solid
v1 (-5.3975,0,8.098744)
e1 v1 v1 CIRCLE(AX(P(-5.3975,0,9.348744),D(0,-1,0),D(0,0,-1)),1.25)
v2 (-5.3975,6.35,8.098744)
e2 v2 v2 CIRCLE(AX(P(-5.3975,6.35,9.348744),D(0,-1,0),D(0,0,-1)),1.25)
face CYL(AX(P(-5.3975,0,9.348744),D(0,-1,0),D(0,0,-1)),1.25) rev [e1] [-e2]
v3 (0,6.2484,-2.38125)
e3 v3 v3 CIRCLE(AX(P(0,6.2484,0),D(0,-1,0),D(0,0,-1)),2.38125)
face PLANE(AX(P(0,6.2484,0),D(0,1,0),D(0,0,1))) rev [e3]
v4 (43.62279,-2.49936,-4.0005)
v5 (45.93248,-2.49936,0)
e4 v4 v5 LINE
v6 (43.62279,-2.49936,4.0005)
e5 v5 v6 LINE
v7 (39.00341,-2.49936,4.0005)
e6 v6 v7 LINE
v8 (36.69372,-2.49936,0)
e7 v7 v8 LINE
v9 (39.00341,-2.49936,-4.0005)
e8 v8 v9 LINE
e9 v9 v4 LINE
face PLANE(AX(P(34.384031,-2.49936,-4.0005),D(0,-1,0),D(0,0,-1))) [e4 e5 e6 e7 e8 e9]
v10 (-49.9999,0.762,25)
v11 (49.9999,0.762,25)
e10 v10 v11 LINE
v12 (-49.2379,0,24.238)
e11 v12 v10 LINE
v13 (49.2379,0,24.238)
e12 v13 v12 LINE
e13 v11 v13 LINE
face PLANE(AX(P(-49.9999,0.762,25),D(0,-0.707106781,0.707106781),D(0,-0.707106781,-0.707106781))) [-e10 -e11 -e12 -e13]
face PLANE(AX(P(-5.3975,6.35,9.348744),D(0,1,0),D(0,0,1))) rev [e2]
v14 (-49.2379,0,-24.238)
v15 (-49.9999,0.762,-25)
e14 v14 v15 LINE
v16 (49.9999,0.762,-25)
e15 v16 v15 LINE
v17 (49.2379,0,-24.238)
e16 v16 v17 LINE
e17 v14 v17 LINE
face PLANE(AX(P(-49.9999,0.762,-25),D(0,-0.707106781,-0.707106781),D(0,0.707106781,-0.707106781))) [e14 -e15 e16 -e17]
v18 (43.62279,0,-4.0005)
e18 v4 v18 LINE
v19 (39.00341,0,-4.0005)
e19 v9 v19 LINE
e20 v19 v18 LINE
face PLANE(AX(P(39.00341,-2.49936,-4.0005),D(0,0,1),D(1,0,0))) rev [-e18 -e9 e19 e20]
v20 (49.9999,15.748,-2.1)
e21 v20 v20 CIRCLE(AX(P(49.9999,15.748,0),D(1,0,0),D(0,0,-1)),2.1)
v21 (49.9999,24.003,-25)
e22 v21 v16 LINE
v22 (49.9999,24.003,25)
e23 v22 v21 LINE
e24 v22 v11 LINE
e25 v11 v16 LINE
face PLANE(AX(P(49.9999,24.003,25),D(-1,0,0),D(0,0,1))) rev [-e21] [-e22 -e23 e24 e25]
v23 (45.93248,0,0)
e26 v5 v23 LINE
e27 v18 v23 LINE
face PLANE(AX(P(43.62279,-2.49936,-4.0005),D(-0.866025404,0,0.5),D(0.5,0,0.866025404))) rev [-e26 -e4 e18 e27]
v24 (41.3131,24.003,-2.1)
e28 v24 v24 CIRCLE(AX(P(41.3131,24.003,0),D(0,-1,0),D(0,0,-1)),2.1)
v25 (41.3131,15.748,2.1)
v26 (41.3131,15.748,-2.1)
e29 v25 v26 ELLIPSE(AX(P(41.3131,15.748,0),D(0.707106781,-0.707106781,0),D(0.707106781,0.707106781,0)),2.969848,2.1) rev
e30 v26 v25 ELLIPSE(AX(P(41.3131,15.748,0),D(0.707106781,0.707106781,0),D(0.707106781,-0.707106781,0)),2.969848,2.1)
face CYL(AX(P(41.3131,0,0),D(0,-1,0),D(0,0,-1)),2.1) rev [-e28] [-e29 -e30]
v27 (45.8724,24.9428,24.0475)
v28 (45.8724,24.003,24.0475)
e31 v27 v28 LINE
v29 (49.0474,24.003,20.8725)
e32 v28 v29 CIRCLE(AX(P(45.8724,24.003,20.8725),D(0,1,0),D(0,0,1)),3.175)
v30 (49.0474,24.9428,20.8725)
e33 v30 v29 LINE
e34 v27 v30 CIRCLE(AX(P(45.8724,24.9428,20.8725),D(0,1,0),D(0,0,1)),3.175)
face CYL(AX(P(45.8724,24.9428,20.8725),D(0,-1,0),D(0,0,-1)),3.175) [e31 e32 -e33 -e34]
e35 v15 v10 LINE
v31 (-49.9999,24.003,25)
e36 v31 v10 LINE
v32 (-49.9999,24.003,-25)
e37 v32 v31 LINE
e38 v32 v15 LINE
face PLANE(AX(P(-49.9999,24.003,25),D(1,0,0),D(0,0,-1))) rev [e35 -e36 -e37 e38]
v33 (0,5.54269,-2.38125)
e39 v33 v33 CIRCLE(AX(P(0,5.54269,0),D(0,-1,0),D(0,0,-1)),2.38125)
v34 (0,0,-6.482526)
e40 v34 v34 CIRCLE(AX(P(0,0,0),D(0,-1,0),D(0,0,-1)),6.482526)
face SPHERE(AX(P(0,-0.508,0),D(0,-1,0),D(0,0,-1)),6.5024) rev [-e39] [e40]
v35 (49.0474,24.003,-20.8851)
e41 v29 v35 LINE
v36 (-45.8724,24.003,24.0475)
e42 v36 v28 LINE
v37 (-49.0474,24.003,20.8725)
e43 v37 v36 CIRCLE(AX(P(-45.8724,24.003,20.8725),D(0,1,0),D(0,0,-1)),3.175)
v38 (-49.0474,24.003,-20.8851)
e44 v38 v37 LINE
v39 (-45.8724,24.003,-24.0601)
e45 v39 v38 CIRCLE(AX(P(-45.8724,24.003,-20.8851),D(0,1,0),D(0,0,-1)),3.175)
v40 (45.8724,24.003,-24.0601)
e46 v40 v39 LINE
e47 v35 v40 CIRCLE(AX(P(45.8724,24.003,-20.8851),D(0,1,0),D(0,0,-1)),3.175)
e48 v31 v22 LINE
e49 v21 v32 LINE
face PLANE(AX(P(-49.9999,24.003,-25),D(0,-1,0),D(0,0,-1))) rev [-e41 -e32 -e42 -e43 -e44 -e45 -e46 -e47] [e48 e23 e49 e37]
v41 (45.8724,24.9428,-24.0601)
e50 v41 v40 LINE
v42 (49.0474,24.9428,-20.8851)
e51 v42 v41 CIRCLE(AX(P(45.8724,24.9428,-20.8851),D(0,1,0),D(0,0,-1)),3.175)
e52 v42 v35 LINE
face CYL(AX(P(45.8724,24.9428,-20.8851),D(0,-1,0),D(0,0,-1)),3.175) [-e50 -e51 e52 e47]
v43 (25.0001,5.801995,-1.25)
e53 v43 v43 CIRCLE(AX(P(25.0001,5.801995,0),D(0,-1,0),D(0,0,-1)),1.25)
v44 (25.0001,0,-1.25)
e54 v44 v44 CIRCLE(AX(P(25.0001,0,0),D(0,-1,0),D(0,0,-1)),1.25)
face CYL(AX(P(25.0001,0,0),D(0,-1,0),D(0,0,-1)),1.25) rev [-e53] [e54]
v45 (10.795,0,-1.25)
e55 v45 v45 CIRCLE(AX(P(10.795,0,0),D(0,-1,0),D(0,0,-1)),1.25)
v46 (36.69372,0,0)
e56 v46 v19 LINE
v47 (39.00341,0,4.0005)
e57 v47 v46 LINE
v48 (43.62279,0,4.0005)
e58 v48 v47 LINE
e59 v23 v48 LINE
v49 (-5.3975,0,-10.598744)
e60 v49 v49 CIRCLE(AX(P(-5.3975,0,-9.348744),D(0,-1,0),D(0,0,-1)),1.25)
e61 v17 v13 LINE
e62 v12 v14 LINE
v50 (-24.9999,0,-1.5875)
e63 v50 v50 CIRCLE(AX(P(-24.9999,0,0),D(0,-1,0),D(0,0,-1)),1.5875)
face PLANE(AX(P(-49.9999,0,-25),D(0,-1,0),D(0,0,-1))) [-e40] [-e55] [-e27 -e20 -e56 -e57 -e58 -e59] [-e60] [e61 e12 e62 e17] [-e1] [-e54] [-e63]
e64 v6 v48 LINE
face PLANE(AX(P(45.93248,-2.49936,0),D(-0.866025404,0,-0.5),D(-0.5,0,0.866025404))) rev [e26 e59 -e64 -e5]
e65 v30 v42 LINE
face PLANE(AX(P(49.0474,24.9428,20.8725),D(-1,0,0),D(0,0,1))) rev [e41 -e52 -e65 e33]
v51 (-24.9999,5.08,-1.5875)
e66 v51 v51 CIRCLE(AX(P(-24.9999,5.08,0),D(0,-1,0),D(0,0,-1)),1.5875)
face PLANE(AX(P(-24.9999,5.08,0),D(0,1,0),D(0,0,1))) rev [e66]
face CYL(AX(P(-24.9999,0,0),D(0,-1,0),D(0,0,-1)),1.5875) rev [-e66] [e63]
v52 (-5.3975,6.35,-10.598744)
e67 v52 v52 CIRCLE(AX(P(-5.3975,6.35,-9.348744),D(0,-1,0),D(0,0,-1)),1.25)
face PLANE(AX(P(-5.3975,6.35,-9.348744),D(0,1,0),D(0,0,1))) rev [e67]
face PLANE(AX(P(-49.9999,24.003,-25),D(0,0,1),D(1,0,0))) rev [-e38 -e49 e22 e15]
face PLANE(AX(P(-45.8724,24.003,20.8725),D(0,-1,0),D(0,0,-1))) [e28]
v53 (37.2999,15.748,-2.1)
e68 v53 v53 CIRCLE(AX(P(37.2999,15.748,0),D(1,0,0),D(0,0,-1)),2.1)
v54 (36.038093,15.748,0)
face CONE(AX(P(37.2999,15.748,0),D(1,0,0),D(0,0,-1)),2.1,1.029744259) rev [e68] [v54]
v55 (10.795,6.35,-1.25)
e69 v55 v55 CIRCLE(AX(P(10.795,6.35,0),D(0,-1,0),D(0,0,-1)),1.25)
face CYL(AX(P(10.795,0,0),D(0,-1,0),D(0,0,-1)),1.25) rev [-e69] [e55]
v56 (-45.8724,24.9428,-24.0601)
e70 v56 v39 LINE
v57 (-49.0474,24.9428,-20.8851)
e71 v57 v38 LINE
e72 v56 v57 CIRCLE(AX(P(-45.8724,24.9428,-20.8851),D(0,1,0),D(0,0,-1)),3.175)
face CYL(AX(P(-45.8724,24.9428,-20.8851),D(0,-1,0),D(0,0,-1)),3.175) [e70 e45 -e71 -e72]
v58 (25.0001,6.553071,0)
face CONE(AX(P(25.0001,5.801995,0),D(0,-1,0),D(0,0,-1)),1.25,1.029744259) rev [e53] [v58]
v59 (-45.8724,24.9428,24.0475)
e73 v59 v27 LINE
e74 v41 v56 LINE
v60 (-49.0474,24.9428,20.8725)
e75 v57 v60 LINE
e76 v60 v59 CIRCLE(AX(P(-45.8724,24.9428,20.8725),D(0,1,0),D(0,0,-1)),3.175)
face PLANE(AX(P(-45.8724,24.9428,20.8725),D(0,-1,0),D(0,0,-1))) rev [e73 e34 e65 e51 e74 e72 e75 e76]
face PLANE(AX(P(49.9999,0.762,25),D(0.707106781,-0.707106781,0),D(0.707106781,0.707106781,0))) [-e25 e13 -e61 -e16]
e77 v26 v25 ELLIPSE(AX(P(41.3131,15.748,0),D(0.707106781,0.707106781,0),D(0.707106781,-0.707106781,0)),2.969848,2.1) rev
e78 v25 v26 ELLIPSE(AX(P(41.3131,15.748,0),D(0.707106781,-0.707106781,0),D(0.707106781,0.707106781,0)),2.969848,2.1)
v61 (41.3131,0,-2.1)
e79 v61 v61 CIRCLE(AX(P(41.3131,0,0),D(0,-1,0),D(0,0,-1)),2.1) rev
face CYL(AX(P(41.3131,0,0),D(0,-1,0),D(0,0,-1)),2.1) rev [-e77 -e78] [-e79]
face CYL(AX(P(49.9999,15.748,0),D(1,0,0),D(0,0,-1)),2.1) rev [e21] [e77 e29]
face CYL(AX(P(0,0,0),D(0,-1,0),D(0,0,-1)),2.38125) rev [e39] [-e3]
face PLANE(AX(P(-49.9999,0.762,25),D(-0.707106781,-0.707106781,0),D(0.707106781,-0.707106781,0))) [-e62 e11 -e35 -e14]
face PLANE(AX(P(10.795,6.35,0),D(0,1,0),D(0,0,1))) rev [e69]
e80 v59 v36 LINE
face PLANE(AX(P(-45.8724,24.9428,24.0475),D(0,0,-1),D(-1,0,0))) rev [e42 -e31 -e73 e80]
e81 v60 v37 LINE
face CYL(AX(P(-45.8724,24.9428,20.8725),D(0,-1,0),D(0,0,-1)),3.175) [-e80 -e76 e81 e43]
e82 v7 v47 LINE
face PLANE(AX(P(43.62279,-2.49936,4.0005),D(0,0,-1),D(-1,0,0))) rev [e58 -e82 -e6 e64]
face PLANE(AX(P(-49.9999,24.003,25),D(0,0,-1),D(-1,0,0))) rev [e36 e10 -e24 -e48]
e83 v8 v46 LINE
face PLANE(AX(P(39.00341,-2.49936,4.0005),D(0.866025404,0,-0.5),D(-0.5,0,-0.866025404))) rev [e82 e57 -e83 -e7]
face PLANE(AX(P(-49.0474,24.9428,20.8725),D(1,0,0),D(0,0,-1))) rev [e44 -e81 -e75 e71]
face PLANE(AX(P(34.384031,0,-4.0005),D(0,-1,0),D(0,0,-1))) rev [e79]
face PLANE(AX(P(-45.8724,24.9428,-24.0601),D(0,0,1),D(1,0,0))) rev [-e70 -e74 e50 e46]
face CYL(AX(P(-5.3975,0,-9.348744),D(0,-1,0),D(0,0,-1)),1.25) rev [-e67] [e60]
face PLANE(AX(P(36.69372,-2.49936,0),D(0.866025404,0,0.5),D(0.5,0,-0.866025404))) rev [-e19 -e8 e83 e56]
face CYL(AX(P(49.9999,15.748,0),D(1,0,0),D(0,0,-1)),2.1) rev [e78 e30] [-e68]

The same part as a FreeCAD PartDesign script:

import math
import FreeCAD as App
import Part
import Sketcher

V = App.Vector
Q = App.Units.Quantity


def edges_at(feature, points):
    """Names of the edges that pass closest to the given points."""
    edges = feature.Shape.Edges
    near = lambda p: min(range(len(edges)), key=lambda i: edges[i].distToShape(Part.Vertex(*p))[0])
    return sorted({f"Edge{near(p) + 1}" for p in points})

doc = App.newDocument("Part")
body = doc.addObject("PartDesign::Body", "Body")

# Sketch on XZ plane
sketch1 = body.newObject("Sketcher::SketchObject", "Sketch")
sketch1.AttachmentSupport = (doc.getObject("XZ_Plane"), [""])
sketch1.MapMode = "FlatFace"
sketch1.addGeometry(Part.LineSegment(V(-50, -25, 0), V(-50, 25, 0)), False)
sketch1.addGeometry(Part.LineSegment(V(-50, 25, 0), V(50, 25, 0)), False)
sketch1.addGeometry(Part.LineSegment(V(50, 25, 0), V(50, -25, 0)), False)
sketch1.addGeometry(Part.LineSegment(V(50, -25, 0), V(-50, -25, 0)), False)
sketch1.addConstraint(Sketcher.Constraint("Coincident", 0, 2, 1, 1))
sketch1.addConstraint(Sketcher.Constraint("Coincident", 1, 2, 2, 1))
sketch1.addConstraint(Sketcher.Constraint("Coincident", 2, 2, 3, 1))
sketch1.addConstraint(Sketcher.Constraint("Coincident", 3, 2, 0, 1))
sketch1.addConstraint(Sketcher.Constraint("Vertical", 0))
sketch1.addConstraint(Sketcher.Constraint("Horizontal", 1))
sketch1.addConstraint(Sketcher.Constraint("Vertical", 2))
sketch1.addConstraint(Sketcher.Constraint("Horizontal", 3))
sketch1.addConstraint(Sketcher.Constraint("Symmetric", 0, 2, 2, 2, -1, 1))
sketch1.addConstraint(Sketcher.Constraint("DistanceX", 1, 1, 1, 2, Q("3.937 in")))
sketch1.addConstraint(Sketcher.Constraint("DistanceY", 0, 1, 0, 2, 50.0))
pad1 = body.newObject("PartDesign::Pad", "Pad")
pad1.Profile = sketch1
pad1.Length = Q("0.945 in")
pad1.Reversed = True

# Sketch on XZ plane
sketch2 = body.newObject("Sketcher::SketchObject", "Sketch001")
sketch2.AttachmentSupport = (doc.getObject("XZ_Plane"), [""])
sketch2.MapMode = "FlatFace"
sketch2.addGeometry(Part.Circle(V(-25, 0, 0), V(0, 0, 1), 1.6), False)
sketch2.addConstraint(Sketcher.Constraint("PointOnObject", 0, 3, -1))
sketch2.addConstraint(Sketcher.Constraint("Diameter", 0, Q("0.125 in")))
sketch2.addConstraint(Sketcher.Constraint("DistanceX", 0, 3, -1, 1, 24.9999))
doc.recompute()
hole = body.newObject("PartDesign::Hole", "Hole")
hole.Profile = sketch2
hole.ThreadType = "None"
hole.Diameter = Q("0.125 in")
hole.DepthType = "Dimension"
hole.Depth = Q("0.2 in")
hole.DrillPoint = "Flat"

# Sketch on XZ plane
sketch3 = body.newObject("Sketcher::SketchObject", "Sketch002")
sketch3.AttachmentSupport = (doc.getObject("XZ_Plane"), [""])
sketch3.MapMode = "FlatFace"
sketch3.addGeometry(Part.Circle(V(10.8, 0, 0), V(0, 0, 1), 1.2), False)
sketch3.addConstraint(Sketcher.Constraint("PointOnObject", 0, 3, -1))
sketch3.addConstraint(Sketcher.Constraint("Diameter", 0, 2.5))
sketch3.addConstraint(Sketcher.Constraint("DistanceX", -1, 1, 0, 3, Q("0.425 in")))
doc.recompute()
hole2 = body.newObject("PartDesign::Hole", "Hole001")
hole2.Profile = sketch3
hole2.ThreadType = "None"
hole2.Diameter = 2.5
hole2.DepthType = "Dimension"
hole2.Depth = Q("0.25 in")
hole2.DrillPoint = "Flat"
doc.recompute()

polarpattern = body.newObject("PartDesign::PolarPattern", "PolarPattern")
polarpattern.Originals = [hole2]
polarpattern.Axis = (doc.getObject("Y_Axis"), [""])
polarpattern.Angle = 360
polarpattern.Occurrences = 3
body.Tip = polarpattern

# Sketch on XZ plane
sketch4 = body.newObject("Sketcher::SketchObject", "Sketch003")
sketch4.AttachmentSupport = (doc.getObject("XZ_Plane"), [""])
sketch4.MapMode = "FlatFace"
sketch4.addGeometry(Part.Circle(V(0, 0, 0), V(0, 0, 1), 2.4), False)
sketch4.addConstraint(Sketcher.Constraint("Coincident", 0, 3, -1, 1))
sketch4.addConstraint(Sketcher.Constraint("Diameter", 0, Q("0.1875 in")))
doc.recompute()
hole3 = body.newObject("PartDesign::Hole", "Hole002")
hole3.Profile = sketch4
hole3.ThreadType = "None"
hole3.Diameter = Q("0.1875 in")
hole3.DepthType = "Dimension"
hole3.Depth = Q("0.246 in")
hole3.DrillPoint = "Flat"

# Sketch on XZ plane
sketch5 = body.newObject("Sketcher::SketchObject", "Sketch004")
sketch5.AttachmentSupport = (doc.getObject("XZ_Plane"), [""])
sketch5.MapMode = "FlatFace"
sketch5.AttachmentOffset = App.Placement(V(0, 0, 0.02 * 25.4), App.Rotation())
sketch5.addGeometry(Part.LineSegment(V(0, 7, 0), V(0, -7, 0)), False)
sketch5.addGeometry(Part.ArcOfCircle(Part.Circle(V(0, 0, 0), V(0, 0, 1), 7), math.radians(-90), math.radians(90)), False)
sketch5.addConstraint(Sketcher.Constraint("Coincident", 0, 1, 1, 2))
sketch5.addConstraint(Sketcher.Constraint("Coincident", 1, 1, 0, 2))
sketch5.addConstraint(Sketcher.Constraint("Vertical", 0))
sketch5.addConstraint(Sketcher.Constraint("Coincident", 1, 3, -1, 1))
sketch5.addConstraint(Sketcher.Constraint("PointOnObject", 0, 1, -2))
sketch5.addConstraint(Sketcher.Constraint("Radius", 1, Q("0.256 in")))
groove = body.newObject("PartDesign::Groove", "Groove")
groove.Profile = sketch5
groove.ReferenceAxis = (sketch5, ["V_Axis"])
groove.Angle = 360

# Sketch on XZ plane
sketch6 = body.newObject("Sketcher::SketchObject", "Sketch005")
sketch6.AttachmentSupport = (doc.getObject("XZ_Plane"), [""])
sketch6.MapMode = "FlatFace"
sketch6.addGeometry(Part.Circle(V(25, 0, 0), V(0, 0, 1), 1.2), False)
sketch6.addConstraint(Sketcher.Constraint("PointOnObject", 0, 3, -1))
sketch6.addConstraint(Sketcher.Constraint("Diameter", 0, 2.5))
sketch6.addConstraint(Sketcher.Constraint("DistanceX", -1, 1, 0, 3, 25.0001))
doc.recompute()
hole4 = body.newObject("PartDesign::Hole", "Hole003")
hole4.Profile = sketch6
hole4.ThreadType = "None"
hole4.Diameter = 2.5
hole4.DepthType = "Dimension"
hole4.Depth = 5.801995
hole4.DrillPoint = "Angled"
hole4.DrillPointAngle = 118

# Sketch on YZ plane
sketch7 = body.newObject("Sketcher::SketchObject", "Sketch006")
sketch7.AttachmentSupport = (doc.getObject("YZ_Plane"), [""])
sketch7.MapMode = "FlatFace"
sketch7.AttachmentOffset = App.Placement(V(0, 0, 1.9685 * 25.4), App.Rotation())
sketch7.addGeometry(Part.Circle(V(15.7, 0, 0), V(0, 0, 1), 2.1), False)
sketch7.addConstraint(Sketcher.Constraint("PointOnObject", 0, 3, -1))
sketch7.addConstraint(Sketcher.Constraint("Diameter", 0, 4.2))
sketch7.addConstraint(Sketcher.Constraint("DistanceX", -1, 1, 0, 3, Q("0.62 in")))
doc.recompute()
hole5 = body.newObject("PartDesign::Hole", "Hole004")
hole5.Profile = sketch7
hole5.ThreadType = "None"
hole5.Diameter = 4.2
hole5.DepthType = "Dimension"
hole5.Depth = Q("0.5 in")
hole5.DrillPoint = "Angled"
hole5.DrillPointAngle = 118

# Sketch on XZ plane
sketch8 = body.newObject("Sketcher::SketchObject", "Sketch007")
sketch8.AttachmentSupport = (doc.getObject("XZ_Plane"), [""])
sketch8.MapMode = "FlatFace"
sketch8.addGeometry(Part.Circle(V(41.3, 0, 0), V(0, 0, 1), 2.1), False)
sketch8.addConstraint(Sketcher.Constraint("PointOnObject", 0, 3, -1))
sketch8.addConstraint(Sketcher.Constraint("Diameter", 0, 4.2))
sketch8.addConstraint(Sketcher.Constraint("DistanceX", -1, 1, 0, 3, Q("1.6265 in")))
doc.recompute()
hole6 = body.newObject("PartDesign::Hole", "Hole005")
hole6.Profile = sketch8
hole6.ThreadType = "None"
hole6.Diameter = 4.2
hole6.DepthType = "ThroughAll"
doc.recompute()

chamfer = body.newObject("PartDesign::Chamfer", "Chamfer")
chamfer.Base = (hole6, edges_at(hole6, [
    (0, 0, -25),
    (50, 0, 0),
    (0, 0, 25),
    (-50, 0, 0),
]))
chamfer.Size = Q("0.03 in")

# Sketch on XZ plane
sketch9 = body.newObject("Sketcher::SketchObject", "Sketch008")
sketch9.AttachmentSupport = (doc.getObject("XZ_Plane"), [""])
sketch9.MapMode = "FlatFace"
sketch9.AttachmentOffset = App.Placement(V(0, 0, -0.945 * 25.4), App.Rotation())
sketch9.addGeometry(Part.LineSegment(V(-45.9, 24, 0), V(45.9, 24, 0)), False)
sketch9.addGeometry(Part.ArcOfCircle(Part.Circle(V(45.9, 20.9, 0), V(0, 0, 1), 3.2), math.radians(0), math.radians(90)), False)
sketch9.addGeometry(Part.LineSegment(V(49, 20.9, 0), V(49, -20.9, 0)), False)
sketch9.addGeometry(Part.ArcOfCircle(Part.Circle(V(45.9, -20.9, 0), V(0, 0, 1), 3.2), math.radians(-90), math.radians(0)), False)
sketch9.addGeometry(Part.LineSegment(V(45.9, -24.1, 0), V(-45.9, -24.1, 0)), False)
sketch9.addGeometry(Part.ArcOfCircle(Part.Circle(V(-45.9, -20.9, 0), V(0, 0, 1), 3.2), math.radians(-180), math.radians(-90)), False)
sketch9.addGeometry(Part.LineSegment(V(-49, -20.9, 0), V(-49, 20.9, 0)), False)
sketch9.addGeometry(Part.ArcOfCircle(Part.Circle(V(-45.9, 20.9, 0), V(0, 0, 1), 3.2), math.radians(90), math.radians(180)), False)
sketch9.addConstraint(Sketcher.Constraint("Tangent", 0, 2, 1, 2))
sketch9.addConstraint(Sketcher.Constraint("Tangent", 1, 1, 2, 1))
sketch9.addConstraint(Sketcher.Constraint("Tangent", 2, 2, 3, 2))
sketch9.addConstraint(Sketcher.Constraint("Tangent", 3, 1, 4, 1))
sketch9.addConstraint(Sketcher.Constraint("Tangent", 4, 2, 5, 2))
sketch9.addConstraint(Sketcher.Constraint("Tangent", 5, 1, 6, 1))
sketch9.addConstraint(Sketcher.Constraint("Tangent", 6, 2, 7, 2))
sketch9.addConstraint(Sketcher.Constraint("Tangent", 7, 1, 0, 1))
sketch9.addConstraint(Sketcher.Constraint("Horizontal", 0))
sketch9.addConstraint(Sketcher.Constraint("Vertical", 2))
sketch9.addConstraint(Sketcher.Constraint("Horizontal", 4))
sketch9.addConstraint(Sketcher.Constraint("Vertical", 6))
sketch9.addConstraint(Sketcher.Constraint("Equal", 1, 3))
sketch9.addConstraint(Sketcher.Constraint("Equal", 3, 5))
sketch9.addConstraint(Sketcher.Constraint("Equal", 5, 7))
sketch9.addConstraint(Sketcher.Constraint("Radius", 1, Q("0.125 in")))
sketch9.addConstraint(Sketcher.Constraint("DistanceX", 0, 1, 0, 2, Q("3.612 in")))
sketch9.addConstraint(Sketcher.Constraint("DistanceY", 2, 2, 2, 1, Q("1.644 in")))
sketch9.addConstraint(Sketcher.Constraint("DistanceX", -1, 1, 1, 3, Q("1.806 in")))
sketch9.addConstraint(Sketcher.Constraint("DistanceY", -1, 1, 1, 3, 20.8725))
pad2 = body.newObject("PartDesign::Pad", "Pad001")
pad2.Profile = sketch9
pad2.Length = Q("0.037 in")
pad2.Reversed = True

# Sketch on XZ plane
sketch10 = body.newObject("Sketcher::SketchObject", "Sketch009")
sketch10.AttachmentSupport = (doc.getObject("XZ_Plane"), [""])
sketch10.MapMode = "FlatFace"
sketch10.addGeometry(Part.LineSegment(V(36.7, 0, 0), V(39, -4, 0)), False)
sketch10.addGeometry(Part.LineSegment(V(39, -4, 0), V(43.6, -4, 0)), False)
sketch10.addGeometry(Part.LineSegment(V(43.6, -4, 0), V(45.9, 0, 0)), False)
sketch10.addGeometry(Part.LineSegment(V(45.9, 0, 0), V(43.6, 4, 0)), False)
sketch10.addGeometry(Part.LineSegment(V(43.6, 4, 0), V(39, 4, 0)), False)
sketch10.addGeometry(Part.LineSegment(V(39, 4, 0), V(36.7, 0, 0)), False)
sketch10.addConstraint(Sketcher.Constraint("Coincident", 0, 2, 1, 1))
sketch10.addConstraint(Sketcher.Constraint("Coincident", 1, 2, 2, 1))
sketch10.addConstraint(Sketcher.Constraint("Coincident", 2, 2, 3, 1))
sketch10.addConstraint(Sketcher.Constraint("Coincident", 3, 2, 4, 1))
sketch10.addConstraint(Sketcher.Constraint("Coincident", 4, 2, 5, 1))
sketch10.addConstraint(Sketcher.Constraint("Coincident", 5, 2, 0, 1))
sketch10.addConstraint(Sketcher.Constraint("Horizontal", 1))
sketch10.addConstraint(Sketcher.Constraint("Horizontal", 4))
sketch10.addConstraint(Sketcher.Constraint("Symmetric", 1, 2, 3, 2, -1))
sketch10.addConstraint(Sketcher.Constraint("PointOnObject", 2, 2, -1))
sketch10.addConstraint(Sketcher.Constraint("PointOnObject", 5, 2, -1))
sketch10.addConstraint(Sketcher.Constraint("Parallel", 0, 3))
sketch10.addConstraint(Sketcher.Constraint("Parallel", 2, 5))
sketch10.addConstraint(Sketcher.Constraint("Angle", 0, Q("-60 deg")))
sketch10.addConstraint(Sketcher.Constraint("DistanceY", 1, 2, 3, 2, Q("0.315 in")))
sketch10.addConstraint(Sketcher.Constraint("DistanceX", 1, 1, 1, 2, 4.61938))
sketch10.addConstraint(Sketcher.Constraint("DistanceX", -1, 1, 0, 2, 39.00341))
pad3 = body.newObject("PartDesign::Pad", "Pad002")
pad3.Profile = sketch10
pad3.Length = Q("0.0984 in")

doc.recompute()
